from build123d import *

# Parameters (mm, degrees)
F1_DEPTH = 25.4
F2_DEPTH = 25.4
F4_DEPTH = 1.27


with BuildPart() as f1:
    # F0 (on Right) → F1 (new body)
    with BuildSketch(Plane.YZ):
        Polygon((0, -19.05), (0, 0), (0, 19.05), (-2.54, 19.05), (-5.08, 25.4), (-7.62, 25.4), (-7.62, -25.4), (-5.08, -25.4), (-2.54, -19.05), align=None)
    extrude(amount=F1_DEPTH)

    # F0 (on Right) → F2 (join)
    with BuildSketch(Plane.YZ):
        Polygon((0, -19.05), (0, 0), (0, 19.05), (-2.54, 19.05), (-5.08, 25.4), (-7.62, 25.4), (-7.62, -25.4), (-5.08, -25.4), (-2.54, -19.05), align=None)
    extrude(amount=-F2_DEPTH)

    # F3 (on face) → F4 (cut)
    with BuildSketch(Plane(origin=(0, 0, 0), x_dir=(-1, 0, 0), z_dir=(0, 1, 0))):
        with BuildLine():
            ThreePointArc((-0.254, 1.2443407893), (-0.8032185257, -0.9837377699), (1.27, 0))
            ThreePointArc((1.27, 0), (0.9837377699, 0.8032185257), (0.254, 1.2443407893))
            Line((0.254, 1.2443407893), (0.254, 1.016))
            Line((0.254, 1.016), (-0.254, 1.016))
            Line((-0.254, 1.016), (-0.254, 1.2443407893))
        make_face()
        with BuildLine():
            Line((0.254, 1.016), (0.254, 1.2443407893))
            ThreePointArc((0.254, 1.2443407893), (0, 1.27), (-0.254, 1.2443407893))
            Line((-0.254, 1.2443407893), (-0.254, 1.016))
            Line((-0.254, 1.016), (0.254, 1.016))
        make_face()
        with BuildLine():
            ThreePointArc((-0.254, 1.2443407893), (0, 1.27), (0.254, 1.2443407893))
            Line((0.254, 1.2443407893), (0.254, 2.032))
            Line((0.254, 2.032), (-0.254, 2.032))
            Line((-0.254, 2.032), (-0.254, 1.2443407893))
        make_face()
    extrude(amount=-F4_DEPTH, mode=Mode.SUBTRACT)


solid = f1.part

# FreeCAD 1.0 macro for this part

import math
import FreeCAD as App
import Part
import Sketcher
Q = App.Units.Quantity

doc = App.newDocument("Part")
body = doc.addObject("PartDesign::Body", "Body")

# Sketch on YZ plane
sketch1 = body.newObject("Sketcher::SketchObject", "Sketch")
sketch1.AttachmentSupport = (doc.getObject("YZ_Plane"), [""])
sketch1.MapMode = "FlatFace"
sketch1.addGeometry([
    Part.LineSegment(App.Vector(0, -19.1, 0), App.Vector(0, 19.1, 0)),  # 0
    Part.LineSegment(App.Vector(0, 19.1, 0), App.Vector(-2.5, 19.1, 0)),  # 1
    Part.LineSegment(App.Vector(-2.5, 19.1, 0), App.Vector(-5.1, 25.4, 0)),  # 2
    Part.LineSegment(App.Vector(-5.1, 25.4, 0), App.Vector(-7.6, 25.4, 0)),  # 3
    Part.LineSegment(App.Vector(-7.6, 25.4, 0), App.Vector(-7.6, -25.4, 0)),  # 4
    Part.LineSegment(App.Vector(-7.6, -25.4, 0), App.Vector(-5.1, -25.4, 0)),  # 5
    Part.LineSegment(App.Vector(-5.1, -25.4, 0), App.Vector(-2.5, -19.1, 0)),  # 6
    Part.LineSegment(App.Vector(-2.5, -19.1, 0), App.Vector(0, -19.1, 0)),  # 7
], False)
sketch1.addConstraint([
    Sketcher.Constraint("Coincident", 0, 2, 1, 1),
    Sketcher.Constraint("Coincident", 1, 2, 2, 1),
    Sketcher.Constraint("Coincident", 2, 2, 3, 1),
    Sketcher.Constraint("Coincident", 3, 2, 4, 1),
    Sketcher.Constraint("Coincident", 4, 2, 5, 1),
    Sketcher.Constraint("Coincident", 5, 2, 6, 1),
    Sketcher.Constraint("Coincident", 6, 2, 7, 1),
    Sketcher.Constraint("Coincident", 7, 2, 0, 1),
    Sketcher.Constraint("Vertical", 0),
    Sketcher.Constraint("Horizontal", 1),
    Sketcher.Constraint("Horizontal", 3),
    Sketcher.Constraint("Vertical", 4),
    Sketcher.Constraint("Horizontal", 5),
    Sketcher.Constraint("Horizontal", 7),
    Sketcher.Constraint("Symmetric", 0, 2, 7, 2, -1, 1),
    Sketcher.Constraint("Symmetric", 2, 2, 5, 2, -1),
    Sketcher.Constraint("Vertical", 1, 2, 6, 2),
    Sketcher.Constraint("Equal", 1, 3),
    Sketcher.Constraint("DistanceY", 4, 2, 4, 1, Q("2 in")),
    Sketcher.Constraint("DistanceX", 1, 2, 1, 1, Q("0.1 in")),
    Sketcher.Constraint("DistanceY", 0, 1, 0, 2, Q("1.5 in")),
    Sketcher.Constraint("DistanceX", 2, 2, -1, 1, Q("0.2 in")),
])
pad1 = body.newObject("PartDesign::Pad", "Pad")
pad1.Profile = sketch1
pad1.Length = Q("1 in")

# Sketch on YZ plane
sketch2 = body.newObject("Sketcher::SketchObject", "Sketch001")
sketch2.AttachmentSupport = (doc.getObject("YZ_Plane"), [""])
sketch2.MapMode = "FlatFace"
sketch2.addGeometry([
    Part.LineSegment(App.Vector(0, -19.1, 0), App.Vector(0, 19.1, 0)),  # 0
    Part.LineSegment(App.Vector(0, 19.1, 0), App.Vector(-2.5, 19.1, 0)),  # 1
    Part.LineSegment(App.Vector(-2.5, 19.1, 0), App.Vector(-5.1, 25.4, 0)),  # 2
    Part.LineSegment(App.Vector(-5.1, 25.4, 0), App.Vector(-7.6, 25.4, 0)),  # 3
    Part.LineSegment(App.Vector(-7.6, 25.4, 0), App.Vector(-7.6, -25.4, 0)),  # 4
    Part.LineSegment(App.Vector(-7.6, -25.4, 0), App.Vector(-5.1, -25.4, 0)),  # 5
    Part.LineSegment(App.Vector(-5.1, -25.4, 0), App.Vector(-2.5, -19.1, 0)),  # 6
    Part.LineSegment(App.Vector(-2.5, -19.1, 0), App.Vector(0, -19.1, 0)),  # 7
], False)
sketch2.addConstraint([
    Sketcher.Constraint("Coincident", 0, 2, 1, 1),
    Sketcher.Constraint("Coincident", 1, 2, 2, 1),
    Sketcher.Constraint("Coincident", 2, 2, 3, 1),
    Sketcher.Constraint("Coincident", 3, 2, 4, 1),
    Sketcher.Constraint("Coincident", 4, 2, 5, 1),
    Sketcher.Constraint("Coincident", 5, 2, 6, 1),
    Sketcher.Constraint("Coincident", 6, 2, 7, 1),
    Sketcher.Constraint("Coincident", 7, 2, 0, 1),
    Sketcher.Constraint("Vertical", 0),
    Sketcher.Constraint("Horizontal", 1),
    Sketcher.Constraint("Horizontal", 3),
    Sketcher.Constraint("Vertical", 4),
    Sketcher.Constraint("Horizontal", 5),
    Sketcher.Constraint("Horizontal", 7),
    Sketcher.Constraint("Symmetric", 0, 2, 7, 2, -1, 1),
    Sketcher.Constraint("Symmetric", 2, 2, 5, 2, -1),
    Sketcher.Constraint("Vertical", 1, 2, 6, 2),
    Sketcher.Constraint("Equal", 1, 3),
    Sketcher.Constraint("DistanceY", 4, 2, 4, 1, Q("2 in")),
    Sketcher.Constraint("DistanceX", 1, 2, 1, 1, Q("0.1 in")),
    Sketcher.Constraint("DistanceY", 0, 1, 0, 2, Q("1.5 in")),
    Sketcher.Constraint("DistanceX", 2, 2, -1, 1, Q("0.2 in")),
])
pad2 = body.newObject("PartDesign::Pad", "Pad001")
pad2.Profile = sketch2
pad2.Length = Q("1 in")
pad2.Reversed = True

# Sketch on XZ plane
sketch3 = body.newObject("Sketcher::SketchObject", "Sketch002")
sketch3.AttachmentSupport = (doc.getObject("XZ_Plane"), [""])
sketch3.MapMode = "FlatFace"
sketch3.addGeometry([
    Part.ArcOfCircle(Part.Circle(App.Vector(0, 0, 0), App.Vector(0, 0, 1), 1.3), math.radians(180), math.radians(438)),  # 0
    Part.ArcOfCircle(Part.Circle(App.Vector(0, 0, 0), App.Vector(0, 0, 1), 1.3), math.radians(102), math.radians(180)),  # 1
    Part.LineSegment(App.Vector(-0.3, 1.2, 0), App.Vector(-0.3, 2, 0)),  # 2
    Part.LineSegment(App.Vector(-0.3, 2, 0), App.Vector(0.3, 2, 0)),  # 3
    Part.LineSegment(App.Vector(0.3, 2, 0), App.Vector(0.3, 1.2, 0)),  # 4
], False)
sketch3.addConstraint([
    Sketcher.Constraint("Tangent", 0, 1, 1, 2),
    Sketcher.Constraint("Coincident", 1, 1, 2, 1),
    Sketcher.Constraint("Coincident", 2, 2, 3, 1),
    Sketcher.Constraint("Coincident", 3, 2, 4, 1),
    Sketcher.Constraint("Coincident", 4, 2, 0, 2),
    Sketcher.Constraint("Vertical", 2),
    Sketcher.Constraint("Horizontal", 3),
    Sketcher.Constraint("Vertical", 4),
    Sketcher.Constraint("Coincident", 0, 3, -1, 1),
    Sketcher.Constraint("Equal", 0, 1),
    Sketcher.Constraint("PointOnObject", 0, 1, -1),
    Sketcher.Constraint("Horizontal", 1, 1, 4, 2),
    Sketcher.Constraint("Radius", 0, Q("0.05 in")),
    Sketcher.Constraint("DistanceX", 3, 1, 3, 2, Q("0.02 in")),
    Sketcher.Constraint("DistanceY", -1, 1, 2, 2, Q("0.08 in")),
])
pocket1 = body.newObject("PartDesign::Pocket", "Pocket")
pocket1.Profile = sketch3
pocket1.Length = Q("0.05 in")
pocket1.Reversed = True

doc.recompute()
